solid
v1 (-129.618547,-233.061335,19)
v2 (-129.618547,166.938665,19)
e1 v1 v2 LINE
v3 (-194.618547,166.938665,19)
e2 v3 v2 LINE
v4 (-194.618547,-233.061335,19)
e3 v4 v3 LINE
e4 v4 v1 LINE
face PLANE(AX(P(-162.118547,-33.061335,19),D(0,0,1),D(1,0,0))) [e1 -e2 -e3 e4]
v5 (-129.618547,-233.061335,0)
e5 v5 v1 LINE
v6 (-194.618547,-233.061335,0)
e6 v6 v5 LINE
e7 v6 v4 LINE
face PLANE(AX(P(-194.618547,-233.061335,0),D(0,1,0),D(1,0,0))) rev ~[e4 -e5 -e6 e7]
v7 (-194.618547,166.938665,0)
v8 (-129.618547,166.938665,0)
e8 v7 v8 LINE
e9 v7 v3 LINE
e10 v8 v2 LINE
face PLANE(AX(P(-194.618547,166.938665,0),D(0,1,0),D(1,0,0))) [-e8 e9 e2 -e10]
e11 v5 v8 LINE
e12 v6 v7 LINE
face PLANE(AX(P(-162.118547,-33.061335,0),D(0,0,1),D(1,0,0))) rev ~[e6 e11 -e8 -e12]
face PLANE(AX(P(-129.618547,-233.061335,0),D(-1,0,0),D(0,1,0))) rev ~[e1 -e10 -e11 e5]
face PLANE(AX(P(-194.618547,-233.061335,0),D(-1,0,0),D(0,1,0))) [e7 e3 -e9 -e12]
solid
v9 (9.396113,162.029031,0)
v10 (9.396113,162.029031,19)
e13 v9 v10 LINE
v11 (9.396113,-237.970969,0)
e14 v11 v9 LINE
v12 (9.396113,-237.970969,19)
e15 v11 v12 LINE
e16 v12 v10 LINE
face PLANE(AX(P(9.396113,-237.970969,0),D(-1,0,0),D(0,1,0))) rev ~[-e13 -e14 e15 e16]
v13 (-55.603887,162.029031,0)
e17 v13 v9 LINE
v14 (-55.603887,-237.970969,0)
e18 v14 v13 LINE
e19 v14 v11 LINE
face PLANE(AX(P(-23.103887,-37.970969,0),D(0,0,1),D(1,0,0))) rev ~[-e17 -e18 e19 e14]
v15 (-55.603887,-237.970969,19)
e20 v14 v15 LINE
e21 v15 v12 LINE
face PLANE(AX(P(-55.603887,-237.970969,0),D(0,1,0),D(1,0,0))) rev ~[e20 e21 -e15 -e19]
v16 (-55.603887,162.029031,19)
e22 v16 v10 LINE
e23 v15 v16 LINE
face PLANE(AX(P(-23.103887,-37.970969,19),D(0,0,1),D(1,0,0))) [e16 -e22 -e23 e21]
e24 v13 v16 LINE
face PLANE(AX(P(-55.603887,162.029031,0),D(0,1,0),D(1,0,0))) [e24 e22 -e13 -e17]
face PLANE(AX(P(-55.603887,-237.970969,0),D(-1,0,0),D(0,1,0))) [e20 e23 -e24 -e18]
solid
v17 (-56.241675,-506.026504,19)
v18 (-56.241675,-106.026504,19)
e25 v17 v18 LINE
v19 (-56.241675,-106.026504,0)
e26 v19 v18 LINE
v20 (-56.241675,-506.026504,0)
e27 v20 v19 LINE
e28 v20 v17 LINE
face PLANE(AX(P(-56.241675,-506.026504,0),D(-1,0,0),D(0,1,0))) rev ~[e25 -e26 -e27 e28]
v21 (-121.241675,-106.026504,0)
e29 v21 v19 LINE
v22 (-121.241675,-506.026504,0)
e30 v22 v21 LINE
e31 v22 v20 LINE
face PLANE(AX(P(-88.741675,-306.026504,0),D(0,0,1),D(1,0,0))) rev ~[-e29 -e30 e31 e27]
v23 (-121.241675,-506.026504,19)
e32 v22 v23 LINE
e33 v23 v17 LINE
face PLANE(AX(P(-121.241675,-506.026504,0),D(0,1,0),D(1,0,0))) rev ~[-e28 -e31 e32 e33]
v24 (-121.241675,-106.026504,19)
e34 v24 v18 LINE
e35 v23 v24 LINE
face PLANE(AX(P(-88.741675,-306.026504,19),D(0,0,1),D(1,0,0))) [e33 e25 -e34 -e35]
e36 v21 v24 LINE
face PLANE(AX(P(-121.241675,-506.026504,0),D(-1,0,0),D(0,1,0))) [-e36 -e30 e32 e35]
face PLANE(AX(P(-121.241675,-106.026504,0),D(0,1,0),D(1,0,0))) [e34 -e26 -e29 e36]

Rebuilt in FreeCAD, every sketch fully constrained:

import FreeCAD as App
import Part
import Sketcher
from FreeCAD import Vector


def add_polygon(sketch, points):
    """Adds a closed chain of lines whose ends are joined by coincident constraints."""
    first, n = sketch.GeometryCount, len(points)
    for a, b in zip(points, points[1:] + points[:1]):
        sketch.addGeometry(Part.LineSegment(App.Vector(*a, 0), App.Vector(*b, 0)), False)
    for i in range(n):
        sketch.addConstraint(Sketcher.Constraint("Coincident", first + i, 2, first + (i + 1) % n, 1))

doc = App.newDocument("Part")
params = doc.addObject("Spreadsheet::Sheet", "Params")
for row, (alias, value) in enumerate([
    ("sketch1_width", "65 mm"),
    ("sketch1_height", "400 mm"),
    ("pad1_length", "19 mm"),
    ("sketch2_width", "65 mm"),
    ("sketch2_height", "400 mm"),
    ("pad2_length", "19 mm"),
    ("sketch3_width", "65 mm"),
    ("sketch3_height", "400 mm"),
    ("pad3_length", "19 mm"),
], start=1):
    params.set(f"A{row}", alias)
    params.set(f"B{row}", "=" + value)
    params.setAlias(f"B{row}", alias)

body = doc.addObject("PartDesign::Body", "Body")

# Sketch on XY plane
sketch1 = doc.addObject("Sketcher::SketchObject", "Sketch")
body.addObject(sketch1)
sketch1.AttachmentSupport = (doc.XY_Plane, [""])
sketch1.MapMode = "FlatFace"
add_polygon(sketch1, [(-56, 162), (-56, -238), (9, -238), (9, 162)])  # lines 0-3
sketch1.addConstraint(Sketcher.Constraint("Vertical", 0))
sketch1.addConstraint(Sketcher.Constraint("Horizontal", 1))
sketch1.addConstraint(Sketcher.Constraint("Vertical", 2))
sketch1.addConstraint(Sketcher.Constraint("Horizontal", 3))
sketch1.addConstraint(Sketcher.Constraint("DistanceX", 1, 1, 1, 2, 65.0))
sketch1.addConstraint(Sketcher.Constraint("DistanceY", 0, 2, 0, 1, 400.0))
sketch1.addConstraint(Sketcher.Constraint("DistanceY", 0, 2, -1, 1, 237.970969))
sketch1.addConstraint(Sketcher.Constraint("DistanceX", 0, 2, -1, 1, 55.603887))
sketch1.setExpression("Constraints[8]", "Params.sketch1_width")
sketch1.setExpression("Constraints[9]", "Params.sketch1_height")
pad1 = doc.addObject("PartDesign::Pad", "Pad")
body.addObject(pad1)
pad1.Profile = sketch1
pad1.setExpression("Length", "Params.pad1_length")
body2 = doc.addObject("PartDesign::Body", "Body001")

# Sketch on XY plane
sketch2 = doc.addObject("Sketcher::SketchObject", "Sketch001")
body2.addObject(sketch2)
sketch2.AttachmentSupport = (doc.getObject("XY_Plane001"), [""])
sketch2.MapMode = "FlatFace"
add_polygon(sketch2, [(-121, -106), (-121, -506), (-56, -506), (-56, -106)])  # lines 0-3
sketch2.addConstraint(Sketcher.Constraint("Vertical", 0))
sketch2.addConstraint(Sketcher.Constraint("Horizontal", 1))
sketch2.addConstraint(Sketcher.Constraint("Vertical", 2))
sketch2.addConstraint(Sketcher.Constraint("Horizontal", 3))
sketch2.addConstraint(Sketcher.Constraint("DistanceX", 1, 1, 1, 2, 65.0))
sketch2.addConstraint(Sketcher.Constraint("DistanceY", 0, 2, 0, 1, 400.0))
sketch2.addConstraint(Sketcher.Constraint("DistanceX", 0, 2, -1, 1, 121.241675))
sketch2.addConstraint(Sketcher.Constraint("DistanceY", 0, 2, -1, 1, 506.026504))
sketch2.setExpression("Constraints[8]", "Params.sketch2_width")
sketch2.setExpression("Constraints[9]", "Params.sketch2_height")
pad2 = doc.addObject("PartDesign::Pad", "Pad001")
body2.addObject(pad2)
pad2.Profile = sketch2
pad2.setExpression("Length", "Params.pad2_length")
body3 = doc.addObject("PartDesign::Body", "Body002")

# Sketch on XY plane
sketch3 = doc.addObject("Sketcher::SketchObject", "Sketch002")
body3.addObject(sketch3)
sketch3.AttachmentSupport = (doc.getObject("XY_Plane002"), [""])
sketch3.MapMode = "FlatFace"
add_polygon(sketch3, [(-195, 167), (-195, -233), (-130, -233), (-130, 167)])  # lines 0-3
sketch3.addConstraint(Sketcher.Constraint("Vertical", 0))
sketch3.addConstraint(Sketcher.Constraint("Horizontal", 1))
sketch3.addConstraint(Sketcher.Constraint("Vertical", 2))
sketch3.addConstraint(Sketcher.Constraint("Horizontal", 3))
sketch3.addConstraint(Sketcher.Constraint("DistanceX", 1, 1, 1, 2, 65.0))
sketch3.addConstraint(Sketcher.Constraint("DistanceY", 0, 2, 0, 1, 400.0))
sketch3.addConstraint(Sketcher.Constraint("DistanceX", 0, 2, -1, 1, 194.618547))
sketch3.addConstraint(Sketcher.Constraint("DistanceY", 0, 2, -1, 1, 233.061335))
sketch3.setExpression("Constraints[8]", "Params.sketch3_width")
sketch3.setExpression("Constraints[9]", "Params.sketch3_height")
pad3 = doc.addObject("PartDesign::Pad", "Pad002")
body3.addObject(pad3)
pad3.Profile = sketch3
pad3.setExpression("Length", "Params.pad3_length")

doc.recompute()
